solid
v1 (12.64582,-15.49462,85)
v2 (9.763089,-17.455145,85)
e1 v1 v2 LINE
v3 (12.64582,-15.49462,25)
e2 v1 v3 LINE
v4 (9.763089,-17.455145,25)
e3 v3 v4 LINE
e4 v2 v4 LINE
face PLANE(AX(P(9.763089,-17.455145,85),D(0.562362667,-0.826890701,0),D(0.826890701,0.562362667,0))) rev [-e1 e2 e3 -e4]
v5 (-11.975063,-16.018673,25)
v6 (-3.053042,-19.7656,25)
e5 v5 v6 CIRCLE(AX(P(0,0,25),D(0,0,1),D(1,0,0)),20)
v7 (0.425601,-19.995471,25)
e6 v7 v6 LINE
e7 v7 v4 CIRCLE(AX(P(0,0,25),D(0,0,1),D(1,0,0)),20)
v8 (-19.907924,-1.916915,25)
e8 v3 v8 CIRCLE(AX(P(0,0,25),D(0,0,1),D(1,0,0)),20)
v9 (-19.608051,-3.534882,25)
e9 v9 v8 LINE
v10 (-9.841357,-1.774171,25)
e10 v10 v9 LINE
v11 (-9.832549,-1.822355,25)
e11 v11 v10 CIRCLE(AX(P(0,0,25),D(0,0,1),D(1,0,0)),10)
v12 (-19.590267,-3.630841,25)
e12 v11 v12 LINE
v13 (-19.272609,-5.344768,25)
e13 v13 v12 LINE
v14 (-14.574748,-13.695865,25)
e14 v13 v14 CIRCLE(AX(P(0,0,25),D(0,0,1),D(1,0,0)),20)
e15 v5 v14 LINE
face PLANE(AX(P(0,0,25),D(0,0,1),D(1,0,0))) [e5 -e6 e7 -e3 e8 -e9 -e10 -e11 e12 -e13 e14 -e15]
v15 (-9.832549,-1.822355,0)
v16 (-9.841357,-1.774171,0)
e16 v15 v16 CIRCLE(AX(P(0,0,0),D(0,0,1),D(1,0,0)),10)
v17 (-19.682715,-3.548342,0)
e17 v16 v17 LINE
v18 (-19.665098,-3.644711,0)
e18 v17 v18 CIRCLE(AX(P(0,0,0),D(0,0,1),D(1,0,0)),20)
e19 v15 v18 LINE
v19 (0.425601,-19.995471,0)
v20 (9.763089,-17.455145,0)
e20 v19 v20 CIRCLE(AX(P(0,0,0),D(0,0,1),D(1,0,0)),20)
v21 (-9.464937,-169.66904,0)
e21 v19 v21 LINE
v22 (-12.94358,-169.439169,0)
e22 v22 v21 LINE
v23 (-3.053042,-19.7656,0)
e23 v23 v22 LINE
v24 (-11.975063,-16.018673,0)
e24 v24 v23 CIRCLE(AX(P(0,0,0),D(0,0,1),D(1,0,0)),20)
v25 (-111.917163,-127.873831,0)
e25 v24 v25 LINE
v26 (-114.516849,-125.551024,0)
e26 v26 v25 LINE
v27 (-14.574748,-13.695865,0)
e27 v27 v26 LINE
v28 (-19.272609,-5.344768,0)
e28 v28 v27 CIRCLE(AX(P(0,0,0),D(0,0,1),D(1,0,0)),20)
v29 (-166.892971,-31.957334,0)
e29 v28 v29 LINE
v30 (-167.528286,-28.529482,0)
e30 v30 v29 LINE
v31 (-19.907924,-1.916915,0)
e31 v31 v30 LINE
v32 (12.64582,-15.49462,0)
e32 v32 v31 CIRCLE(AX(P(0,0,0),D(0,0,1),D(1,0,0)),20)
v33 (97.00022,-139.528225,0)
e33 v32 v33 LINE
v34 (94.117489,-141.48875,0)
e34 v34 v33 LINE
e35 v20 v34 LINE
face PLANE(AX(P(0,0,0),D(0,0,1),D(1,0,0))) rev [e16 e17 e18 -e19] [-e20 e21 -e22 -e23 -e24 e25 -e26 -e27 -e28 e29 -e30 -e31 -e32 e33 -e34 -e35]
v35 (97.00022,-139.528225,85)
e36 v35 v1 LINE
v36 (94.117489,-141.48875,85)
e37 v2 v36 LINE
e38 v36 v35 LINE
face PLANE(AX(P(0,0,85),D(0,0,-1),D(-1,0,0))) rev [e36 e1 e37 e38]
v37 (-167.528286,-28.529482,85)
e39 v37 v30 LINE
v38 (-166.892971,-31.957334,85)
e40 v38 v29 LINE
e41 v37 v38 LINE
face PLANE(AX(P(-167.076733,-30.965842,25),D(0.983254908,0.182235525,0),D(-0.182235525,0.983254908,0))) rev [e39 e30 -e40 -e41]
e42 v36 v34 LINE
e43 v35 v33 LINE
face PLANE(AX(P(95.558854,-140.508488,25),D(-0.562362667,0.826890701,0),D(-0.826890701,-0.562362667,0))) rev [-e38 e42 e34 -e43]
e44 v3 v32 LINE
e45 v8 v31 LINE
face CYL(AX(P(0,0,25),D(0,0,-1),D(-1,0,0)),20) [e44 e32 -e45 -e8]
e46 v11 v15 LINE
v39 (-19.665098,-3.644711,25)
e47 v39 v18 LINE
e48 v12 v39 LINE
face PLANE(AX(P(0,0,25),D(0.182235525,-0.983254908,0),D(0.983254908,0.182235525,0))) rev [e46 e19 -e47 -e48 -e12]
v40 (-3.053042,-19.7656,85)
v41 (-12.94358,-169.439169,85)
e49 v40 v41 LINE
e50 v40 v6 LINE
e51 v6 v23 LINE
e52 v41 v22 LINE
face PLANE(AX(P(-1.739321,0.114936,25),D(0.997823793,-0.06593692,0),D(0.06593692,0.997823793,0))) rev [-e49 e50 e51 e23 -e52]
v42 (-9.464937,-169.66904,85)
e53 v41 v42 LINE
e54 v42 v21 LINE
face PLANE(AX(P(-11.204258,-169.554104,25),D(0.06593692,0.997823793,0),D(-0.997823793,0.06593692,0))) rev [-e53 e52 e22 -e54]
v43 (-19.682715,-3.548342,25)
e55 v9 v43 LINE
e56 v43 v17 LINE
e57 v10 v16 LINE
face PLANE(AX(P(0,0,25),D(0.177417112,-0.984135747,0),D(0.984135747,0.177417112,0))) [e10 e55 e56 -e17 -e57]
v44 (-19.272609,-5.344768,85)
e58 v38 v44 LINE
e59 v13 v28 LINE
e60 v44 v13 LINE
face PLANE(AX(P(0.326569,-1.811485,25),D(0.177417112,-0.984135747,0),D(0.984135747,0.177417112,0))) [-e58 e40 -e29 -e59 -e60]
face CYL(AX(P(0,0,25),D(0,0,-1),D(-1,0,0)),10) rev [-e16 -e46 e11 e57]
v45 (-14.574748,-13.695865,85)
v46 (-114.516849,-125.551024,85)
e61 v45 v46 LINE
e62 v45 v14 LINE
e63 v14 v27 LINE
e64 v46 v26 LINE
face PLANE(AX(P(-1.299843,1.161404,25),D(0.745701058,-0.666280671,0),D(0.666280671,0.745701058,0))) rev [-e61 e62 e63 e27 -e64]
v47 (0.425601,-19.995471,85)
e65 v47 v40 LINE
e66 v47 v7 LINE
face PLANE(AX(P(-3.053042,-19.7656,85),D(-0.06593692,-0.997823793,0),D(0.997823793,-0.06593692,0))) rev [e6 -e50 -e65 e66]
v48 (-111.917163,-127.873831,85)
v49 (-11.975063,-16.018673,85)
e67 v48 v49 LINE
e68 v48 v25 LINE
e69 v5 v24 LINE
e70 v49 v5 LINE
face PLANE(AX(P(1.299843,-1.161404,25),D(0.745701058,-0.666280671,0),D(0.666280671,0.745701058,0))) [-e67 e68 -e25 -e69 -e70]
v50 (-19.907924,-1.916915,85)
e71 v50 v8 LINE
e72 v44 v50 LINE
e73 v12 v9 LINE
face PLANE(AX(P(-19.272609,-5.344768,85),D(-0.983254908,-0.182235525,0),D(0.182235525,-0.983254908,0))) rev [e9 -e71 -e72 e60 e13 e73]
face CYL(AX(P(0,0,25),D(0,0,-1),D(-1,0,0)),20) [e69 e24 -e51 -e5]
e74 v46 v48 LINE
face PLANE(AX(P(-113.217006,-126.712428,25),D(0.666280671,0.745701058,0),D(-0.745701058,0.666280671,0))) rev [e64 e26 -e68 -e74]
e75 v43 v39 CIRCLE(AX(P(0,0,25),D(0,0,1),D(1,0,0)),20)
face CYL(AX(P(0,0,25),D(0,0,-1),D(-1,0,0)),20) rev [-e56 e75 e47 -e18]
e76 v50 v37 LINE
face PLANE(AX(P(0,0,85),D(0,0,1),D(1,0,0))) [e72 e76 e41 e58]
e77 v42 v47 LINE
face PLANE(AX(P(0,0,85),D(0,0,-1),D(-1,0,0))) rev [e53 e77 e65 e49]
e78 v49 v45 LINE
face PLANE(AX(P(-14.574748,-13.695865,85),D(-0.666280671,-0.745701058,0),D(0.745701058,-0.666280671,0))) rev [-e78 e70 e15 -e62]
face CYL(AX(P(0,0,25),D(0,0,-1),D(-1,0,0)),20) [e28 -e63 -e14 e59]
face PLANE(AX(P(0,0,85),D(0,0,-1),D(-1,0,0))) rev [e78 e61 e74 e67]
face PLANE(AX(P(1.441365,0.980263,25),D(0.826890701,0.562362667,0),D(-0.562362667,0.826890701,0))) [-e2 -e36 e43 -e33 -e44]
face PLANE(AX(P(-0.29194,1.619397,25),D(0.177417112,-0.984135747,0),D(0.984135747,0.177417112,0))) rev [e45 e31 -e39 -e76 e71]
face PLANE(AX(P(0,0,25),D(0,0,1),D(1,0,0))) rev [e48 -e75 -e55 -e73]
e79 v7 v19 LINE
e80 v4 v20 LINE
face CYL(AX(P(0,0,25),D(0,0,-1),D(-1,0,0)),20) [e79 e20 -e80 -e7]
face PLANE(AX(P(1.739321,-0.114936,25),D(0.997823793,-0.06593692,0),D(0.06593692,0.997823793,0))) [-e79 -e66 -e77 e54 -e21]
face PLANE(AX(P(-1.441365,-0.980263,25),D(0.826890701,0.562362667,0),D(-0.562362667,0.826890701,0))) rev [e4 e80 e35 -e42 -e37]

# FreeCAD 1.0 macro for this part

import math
import FreeCAD as App
import Part
import Sketcher

V = App.Vector
Q = App.Units.Quantity


def add_polygon(sketch, points):
    """Adds a closed chain of lines whose ends are joined by coincident constraints."""
    first, n = sketch.GeometryCount, len(points)
    for a, b in zip(points, points[1:] + points[:1]):
        sketch.addGeometry(Part.LineSegment(App.Vector(*a, 0), App.Vector(*b, 0)), False)
    for i in range(n):
        sketch.addConstraint(Sketcher.Constraint("Coincident", first + i, 2, first + (i + 1) % n, 1))

doc = App.newDocument("Part")
body = doc.addObject("PartDesign::Body", "Body")

# Sketch on XY plane
sketch1 = doc.addObject("Sketcher::SketchObject", "Sketch")
body.addObject(sketch1)
sketch1.AttachmentSupport = (doc.XY_Plane, [""])
sketch1.MapMode = "FlatFace"
sketch1.addGeometry([
    Part.ArcOfCircle(Part.Circle(V(0, 0, 0), V(0, 0, 1), 20), math.radians(-164.5), math.radians(-136.78065)),  # 0
    Part.LineSegment(V(-14.574748, -13.695865, 0), V(-114.516849, -125.551024, 0)),  # 1
    Part.LineSegment(V(-114.516849, -125.551024, 0), V(-111.917163, -127.873831, 0)),  # 2
    Part.LineSegment(V(-111.917163, -127.873831, 0), V(-11.975063, -16.018673, 0)),  # 3
    Part.ArcOfCircle(Part.Circle(V(0, 0, 0), V(0, 0, 1), 20), math.radians(-126.78065), math.radians(-98.78065)),  # 4
    Part.LineSegment(V(-3.053042, -19.7656, 0), V(-12.94358, -169.439169, 0)),  # 5
    Part.LineSegment(V(-12.94358, -169.439169, 0), V(-9.464937, -169.66904, 0)),  # 6
    Part.LineSegment(V(-9.464937, -169.66904, 0), V(0.425601, -19.995471, 0)),  # 7
    Part.ArcOfCircle(Part.Circle(V(0, 0, 0), V(0, 0, 1), 20), math.radians(-88.78065), math.radians(-60.78065)),  # 8
    Part.LineSegment(V(9.763089, -17.455145, 0), V(94.117489, -141.48875, 0)),  # 9
    Part.LineSegment(V(94.117489, -141.48875, 0), V(97.00022, -139.528225, 0)),  # 10
    Part.LineSegment(V(97.00022, -139.528225, 0), V(12.64582, -15.49462, 0)),  # 11
    Part.ArcOfCircle(Part.Circle(V(0, 0, 0), V(0, 0, 1), 20), math.radians(-50.78065), math.radians(185.5)),  # 12
    Part.LineSegment(V(-19.907924, -1.916915, 0), V(-167.528286, -28.529482, 0)),  # 13
    Part.LineSegment(V(-167.528286, -28.529482, 0), V(-166.892971, -31.957334, 0)),  # 14
    Part.LineSegment(V(-166.892971, -31.957334, 0), V(-19.272609, -5.344768, 0)),  # 15
    Part.ArcOfCircle(Part.Circle(V(-0.000277, -0.000051, 0), V(0, 0, 1), 19.999718), math.radians(-169.780652), math.radians(-169.499998)),  # 16
    Part.LineSegment(V(-19.682715, -3.548342, 0), V(-9.841357, -1.774171, 0)),  # 17
    Part.ArcOfCircle(Part.Circle(V(0, 0, 0), V(0, 0, 1), 10), math.radians(-169.500001), math.radians(190.219349)),  # 18
    Part.LineSegment(V(-9.832549, -1.822355, 0), V(-19.665098, -3.644711, 0)),  # 19
], False)
sketch1.addConstraint([
    Sketcher.Constraint("Coincident", 0, 2, 1, 1),
    Sketcher.Constraint("Coincident", 1, 2, 2, 1),
    Sketcher.Constraint("Coincident", 2, 2, 3, 1),
    Sketcher.Constraint("Coincident", 3, 2, 4, 1),
    Sketcher.Constraint("Coincident", 4, 2, 5, 1),
    Sketcher.Constraint("Coincident", 5, 2, 6, 1),
    Sketcher.Constraint("Coincident", 6, 2, 7, 1),
    Sketcher.Constraint("Coincident", 7, 2, 8, 1),
    Sketcher.Constraint("Coincident", 8, 2, 9, 1),
    Sketcher.Constraint("Coincident", 9, 2, 10, 1),
    Sketcher.Constraint("Coincident", 10, 2, 11, 1),
    Sketcher.Constraint("Coincident", 11, 2, 12, 1),
    Sketcher.Constraint("Coincident", 12, 2, 13, 1),
    Sketcher.Constraint("Coincident", 13, 2, 14, 1),
    Sketcher.Constraint("Coincident", 14, 2, 15, 1),
    Sketcher.Constraint("Coincident", 15, 2, 0, 1),
    Sketcher.Constraint("Coincident", 16, 1, 17, 1),
    Sketcher.Constraint("Coincident", 17, 2, 18, 2),
    Sketcher.Constraint("Coincident", 18, 1, 19, 1),
    Sketcher.Constraint("Coincident", 19, 2, 16, 2),
    Sketcher.Constraint("Coincident", 0, 3, -1, 1),
    Sketcher.Constraint("Coincident", 4, 3, -1, 1),
    Sketcher.Constraint("Coincident", 8, 3, -1, 1),
    Sketcher.Constraint("Coincident", 12, 3, -1, 1),
    Sketcher.Constraint("Coincident", 18, 3, -1, 1),
    Sketcher.Constraint("Equal", 0, 4),
    Sketcher.Constraint("Equal", 4, 8),
    Sketcher.Constraint("Equal", 8, 12),
    Sketcher.Constraint("Perpendicular", 1, 2),
    Sketcher.Constraint("Perpendicular", 2, 3),
    Sketcher.Constraint("Perpendicular", 5, 6),
    Sketcher.Constraint("Perpendicular", 6, 7),
    Sketcher.Constraint("Perpendicular", 9, 10),
    Sketcher.Constraint("Perpendicular", 10, 11),
    Sketcher.Constraint("Parallel", 13, 15),
    Sketcher.Constraint("Parallel", 15, 17),
    Sketcher.Constraint("Perpendicular", 14, 19),
    Sketcher.Constraint("Equal", 1, 3),
    Sketcher.Constraint("Equal", 3, 5),
    Sketcher.Constraint("Equal", 2, 6),
    Sketcher.Constraint("Equal", 5, 7),
    Sketcher.Constraint("Equal", 7, 9),
    Sketcher.Constraint("Equal", 6, 10),
    Sketcher.Constraint("Equal", 9, 11),
    Sketcher.Constraint("Equal", 11, 13),
    Sketcher.Constraint("Equal", 10, 14),
    Sketcher.Constraint("Equal", 13, 15),
    Sketcher.Constraint("Equal", 17, 19),
    Sketcher.Constraint("Radius", 0, Q("20 mm")),
    Sketcher.Constraint("Radius", 18, Q("10 mm")),
    Sketcher.Constraint("Distance", 1, Q("150 mm")),
    Sketcher.Constraint("Distance", 17, Q("10 mm")),
    Sketcher.Constraint("Angle", 14, Q("-79.5 deg")),
    Sketcher.Constraint("Radius", 16, Q("19.999718 mm")),
    Sketcher.Constraint("DistanceY", 4, 2, -1, 1, Q("19.7656 mm")),
    Sketcher.Constraint("DistanceX", -1, 1, 7, 2, Q("0.425601 mm")),
    Sketcher.Constraint("DistanceX", 19, 2, -1, 1, Q("19.665098 mm")),
    Sketcher.Constraint("DistanceX", 1, 2, 0, 2, Q("99.942101 mm")),
    Sketcher.Constraint("DistanceX", 8, 2, 9, 2, Q("84.3544 mm")),
    Sketcher.Constraint("DistanceY", 13, 2, -1, 1, Q("28.529482 mm")),
    Sketcher.Constraint("DistanceY", 17, 2, -1, 1, Q("1.774171 mm")),
])
pad1 = doc.addObject("PartDesign::Pad", "Pad")
body.addObject(pad1)
pad1.Profile = sketch1
pad1.Length = 25

# Sketch on XY plane
sketch2 = doc.addObject("Sketcher::SketchObject", "Sketch001")
body.addObject(sketch2)
sketch2.AttachmentSupport = (doc.XY_Plane, [""])
sketch2.MapMode = "FlatFace"
sketch2.AttachmentOffset = App.Placement(V(0, 0, 25), App.Rotation())
add_polygon(sketch2, [(-167.528286, -28.529482), (-166.892971, -31.957334), (-19.272609, -5.344768), (-19.907924, -1.916915)])  # lines 0-3
add_polygon(sketch2, [(-11.975063, -16.018673), (-14.574748, -13.695865), (-114.516849, -125.551024), (-111.917163, -127.873831)])  # lines 4-7
add_polygon(sketch2, [(0.425601, -19.995471), (-3.053042, -19.7656), (-12.94358, -169.439169), (-9.464937, -169.66904)])  # lines 8-11
add_polygon(sketch2, [(12.64582, -15.49462), (9.763089, -17.455145), (94.117489, -141.48875), (97.00022, -139.528225)])  # lines 12-15
sketch2.addConstraint([
    Sketcher.Constraint("Parallel", 0, 2),
    Sketcher.Constraint("Parallel", 1, 3),
    Sketcher.Constraint("Perpendicular", 4, 5),
    Sketcher.Constraint("Perpendicular", 5, 6),
    Sketcher.Constraint("Perpendicular", 6, 7),
    Sketcher.Constraint("Perpendicular", 8, 9),
    Sketcher.Constraint("Perpendicular", 9, 10),
    Sketcher.Constraint("Perpendicular", 10, 11),
    Sketcher.Constraint("Perpendicular", 12, 13),
    Sketcher.Constraint("Perpendicular", 13, 14),
    Sketcher.Constraint("Perpendicular", 14, 15),
    Sketcher.Constraint("Equal", 2, 4),
    Sketcher.Constraint("Equal", 3, 5),
    Sketcher.Constraint("Equal", 6, 8),
    Sketcher.Constraint("Equal", 7, 9),
    Sketcher.Constraint("Equal", 10, 12),
    Sketcher.Constraint("Equal", 11, 13),
    Sketcher.Constraint("Distance", 1, Q("150 mm")),
    Sketcher.Constraint("Angle", 0, Q("-79.5 deg")),
    Sketcher.Constraint("DistanceY", 8, 2, -1, 1, Q("19.7656 mm")),
    Sketcher.Constraint("DistanceX", -1, 1, 11, 2, Q("0.425601 mm")),
    Sketcher.Constraint("DistanceX", 5, 2, 4, 2, Q("99.942101 mm")),
    Sketcher.Constraint("DistanceY", 11, 2, 7, 2, Q("3.976799 mm")),
    Sketcher.Constraint("DistanceX", 12, 2, 13, 2, Q("84.3544 mm")),
    Sketcher.Constraint("DistanceX", 9, 2, 14, 2, Q("109.943799 mm")),
    Sketcher.Constraint("Distance", 0, Q("3.48623 mm")),
    Sketcher.Constraint("DistanceX", 0, 2, -1, 1, Q("166.892971 mm")),
    Sketcher.Constraint("DistanceX", 1, 2, -1, 1, Q("19.272609 mm")),
    Sketcher.Constraint("DistanceY", 3, 2, -1, 1, Q("28.529482 mm")),
    Sketcher.Constraint("DistanceX", 4, 2, -1, 1, Q("14.574748 mm")),
    Sketcher.Constraint("DistanceY", 6, 2, -1, 1, Q("127.873831 mm")),
    Sketcher.Constraint("DistanceY", 13, 2, -1, 1, Q("141.48875 mm")),
])
pad2 = doc.addObject("PartDesign::Pad", "Pad001")
body.addObject(pad2)
pad2.Profile = sketch2
pad2.Length = 60

doc.recompute()
